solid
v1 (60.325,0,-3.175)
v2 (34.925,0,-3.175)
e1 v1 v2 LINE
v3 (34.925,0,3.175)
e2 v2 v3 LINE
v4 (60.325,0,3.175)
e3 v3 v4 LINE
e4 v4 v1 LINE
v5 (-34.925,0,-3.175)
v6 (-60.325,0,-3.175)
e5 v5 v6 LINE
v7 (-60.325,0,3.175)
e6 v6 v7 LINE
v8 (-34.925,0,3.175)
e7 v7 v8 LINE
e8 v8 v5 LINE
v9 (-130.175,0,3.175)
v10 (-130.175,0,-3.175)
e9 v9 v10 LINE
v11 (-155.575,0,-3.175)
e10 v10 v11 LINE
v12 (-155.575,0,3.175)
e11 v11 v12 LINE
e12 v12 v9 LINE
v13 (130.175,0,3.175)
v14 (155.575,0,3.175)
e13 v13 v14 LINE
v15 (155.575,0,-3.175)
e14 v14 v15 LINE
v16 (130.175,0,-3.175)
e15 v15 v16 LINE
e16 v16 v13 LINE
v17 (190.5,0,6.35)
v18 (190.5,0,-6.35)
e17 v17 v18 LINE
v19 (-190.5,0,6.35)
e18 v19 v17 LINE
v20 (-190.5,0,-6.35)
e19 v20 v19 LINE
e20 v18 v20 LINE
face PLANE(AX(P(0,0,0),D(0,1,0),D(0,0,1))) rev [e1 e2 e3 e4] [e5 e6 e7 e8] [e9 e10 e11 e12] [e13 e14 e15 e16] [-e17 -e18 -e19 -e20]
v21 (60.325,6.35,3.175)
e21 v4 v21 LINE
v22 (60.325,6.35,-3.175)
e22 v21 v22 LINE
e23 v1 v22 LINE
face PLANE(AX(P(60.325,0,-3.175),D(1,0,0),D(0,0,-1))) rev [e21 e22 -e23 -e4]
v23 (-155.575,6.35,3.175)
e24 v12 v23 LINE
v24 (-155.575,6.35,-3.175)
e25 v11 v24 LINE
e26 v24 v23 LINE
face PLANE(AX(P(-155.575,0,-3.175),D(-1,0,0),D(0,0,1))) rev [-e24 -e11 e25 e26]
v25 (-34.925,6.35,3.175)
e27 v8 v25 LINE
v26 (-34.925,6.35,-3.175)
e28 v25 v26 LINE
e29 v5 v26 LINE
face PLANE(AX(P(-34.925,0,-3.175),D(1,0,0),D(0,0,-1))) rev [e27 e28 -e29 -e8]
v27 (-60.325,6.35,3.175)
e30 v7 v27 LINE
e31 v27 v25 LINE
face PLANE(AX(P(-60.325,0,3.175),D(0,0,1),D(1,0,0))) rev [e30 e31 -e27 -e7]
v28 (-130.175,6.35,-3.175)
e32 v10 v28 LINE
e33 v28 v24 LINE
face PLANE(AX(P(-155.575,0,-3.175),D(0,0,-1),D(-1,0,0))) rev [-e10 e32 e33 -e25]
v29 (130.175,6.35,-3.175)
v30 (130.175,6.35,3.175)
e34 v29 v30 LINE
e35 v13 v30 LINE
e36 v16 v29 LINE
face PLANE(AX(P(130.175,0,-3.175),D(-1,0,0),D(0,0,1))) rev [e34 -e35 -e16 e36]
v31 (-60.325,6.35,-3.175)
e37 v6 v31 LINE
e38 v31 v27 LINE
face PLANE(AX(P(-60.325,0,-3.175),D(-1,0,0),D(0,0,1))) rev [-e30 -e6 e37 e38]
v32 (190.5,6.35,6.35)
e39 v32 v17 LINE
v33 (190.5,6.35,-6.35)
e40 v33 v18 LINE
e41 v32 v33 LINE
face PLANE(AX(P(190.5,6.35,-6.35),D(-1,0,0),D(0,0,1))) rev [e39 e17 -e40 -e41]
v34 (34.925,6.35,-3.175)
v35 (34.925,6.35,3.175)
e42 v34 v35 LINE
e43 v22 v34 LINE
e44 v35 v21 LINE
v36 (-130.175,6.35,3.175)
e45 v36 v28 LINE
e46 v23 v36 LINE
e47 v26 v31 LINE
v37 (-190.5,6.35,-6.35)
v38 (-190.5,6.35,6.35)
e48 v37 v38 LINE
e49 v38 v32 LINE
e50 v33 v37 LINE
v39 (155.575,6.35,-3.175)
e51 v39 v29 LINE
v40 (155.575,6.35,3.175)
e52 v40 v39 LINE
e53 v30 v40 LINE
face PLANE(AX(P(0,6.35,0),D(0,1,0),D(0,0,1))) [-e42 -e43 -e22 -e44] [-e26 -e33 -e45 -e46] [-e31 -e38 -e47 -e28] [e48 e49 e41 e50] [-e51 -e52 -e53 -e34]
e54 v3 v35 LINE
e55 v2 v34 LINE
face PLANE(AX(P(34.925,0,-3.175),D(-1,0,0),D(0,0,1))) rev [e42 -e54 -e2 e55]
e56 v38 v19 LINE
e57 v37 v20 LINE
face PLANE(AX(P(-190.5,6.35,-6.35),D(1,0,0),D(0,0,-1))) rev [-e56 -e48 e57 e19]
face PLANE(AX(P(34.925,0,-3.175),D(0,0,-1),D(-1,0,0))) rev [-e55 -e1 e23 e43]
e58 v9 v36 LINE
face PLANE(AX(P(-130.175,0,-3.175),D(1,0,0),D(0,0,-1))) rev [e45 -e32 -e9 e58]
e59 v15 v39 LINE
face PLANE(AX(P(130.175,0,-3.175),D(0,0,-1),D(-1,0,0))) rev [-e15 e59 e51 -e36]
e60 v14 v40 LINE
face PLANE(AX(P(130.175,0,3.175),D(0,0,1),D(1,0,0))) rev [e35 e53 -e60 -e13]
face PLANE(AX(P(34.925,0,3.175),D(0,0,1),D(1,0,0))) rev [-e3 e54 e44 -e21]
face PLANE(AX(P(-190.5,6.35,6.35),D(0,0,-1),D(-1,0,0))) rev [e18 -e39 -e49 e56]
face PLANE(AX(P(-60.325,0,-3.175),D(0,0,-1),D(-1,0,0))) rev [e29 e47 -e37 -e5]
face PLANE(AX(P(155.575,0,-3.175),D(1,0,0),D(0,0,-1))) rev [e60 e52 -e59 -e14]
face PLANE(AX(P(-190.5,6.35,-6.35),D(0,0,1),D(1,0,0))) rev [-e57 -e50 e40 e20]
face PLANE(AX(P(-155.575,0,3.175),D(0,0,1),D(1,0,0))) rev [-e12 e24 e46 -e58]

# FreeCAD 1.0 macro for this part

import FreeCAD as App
import Part
import Sketcher
Q = App.Units.Quantity


def add_polygon(sketch, points):
    """Adds a closed chain of lines whose ends are joined by coincident constraints."""
    first, n = sketch.GeometryCount, len(points)
    for a, b in zip(points, points[1:] + points[:1]):
        sketch.addGeometry(Part.LineSegment(App.Vector(*a, 0), App.Vector(*b, 0)), False)
    for i in range(n):
        sketch.addConstraint(Sketcher.Constraint("Coincident", first + i, 2, first + (i + 1) % n, 1))

doc = App.newDocument("Part")
body = doc.addObject("PartDesign::Body", "Body")

# Sketch on XZ plane
sketch1 = body.newObject("Sketcher::SketchObject", "Sketch")
sketch1.AttachmentSupport = (doc.getObject("XZ_Plane"), [""])
sketch1.MapMode = "FlatFace"
add_polygon(sketch1, [(-190.5, -6.35), (-190.5, 6.35), (190.5, 6.35), (190.5, -6.35)])  # lines 0-3
sketch1.addConstraint(Sketcher.Constraint("Vertical", 0))
sketch1.addConstraint(Sketcher.Constraint("Horizontal", 1))
sketch1.addConstraint(Sketcher.Constraint("Vertical", 2))
sketch1.addConstraint(Sketcher.Constraint("Horizontal", 3))
sketch1.addConstraint(Sketcher.Constraint("Symmetric", 0, 2, 2, 2, -1, 1))
sketch1.addConstraint(Sketcher.Constraint("DistanceX", 1, 1, 1, 2, Q("15 in")))
sketch1.addConstraint(Sketcher.Constraint("DistanceY", 0, 1, 0, 2, Q("0.5 in")))
pad1 = body.newObject("PartDesign::Pad", "Pad")
pad1.Profile = sketch1
pad1.Length = Q("0.25 in")
pad1.Reversed = True

# Sketch on XZ plane
sketch2 = body.newObject("Sketcher::SketchObject", "Sketch001")
sketch2.AttachmentSupport = (doc.getObject("XZ_Plane"), [""])
sketch2.MapMode = "FlatFace"
sketch2.AttachmentOffset = App.Placement(App.Vector(0, 0, -0.25 * 25.4), App.Rotation())
add_polygon(sketch2, [(-155.575, -3.175), (-155.575, 3.175), (-130.175, 3.175), (-130.175, -3.175)])  # lines 0-3
sketch2.addConstraint(Sketcher.Constraint("Vertical", 0))
sketch2.addConstraint(Sketcher.Constraint("Horizontal", 1))
sketch2.addConstraint(Sketcher.Constraint("Vertical", 2))
sketch2.addConstraint(Sketcher.Constraint("Horizontal", 3))
sketch2.addConstraint(Sketcher.Constraint("DistanceX", 1, 1, 1, 2, Q("1 in")))
sketch2.addConstraint(Sketcher.Constraint("DistanceY", 0, 1, 0, 2, Q("0.25 in")))
sketch2.addConstraint(Sketcher.Constraint("DistanceX", 0, 2, -1, 1, Q("6.125 in")))
sketch2.addConstraint(Sketcher.Constraint("DistanceY", -1, 1, 0, 2, Q("0.125 in")))
pocket1 = body.newObject("PartDesign::Pocket", "Pocket")
pocket1.Profile = sketch2
pocket1.Type = "ThroughAll"
pocket1.Reversed = True
doc.recompute()

linearpattern = body.newObject("PartDesign::LinearPattern", "LinearPattern")
linearpattern.Originals = [pocket1]
linearpattern.Direction = (doc.getObject("X_Axis"), [""])
linearpattern.Mode = "offset"
linearpattern.Offset = Q("3.75 in")
linearpattern.Occurrences = 4
body.Tip = linearpattern

doc.recompute()
